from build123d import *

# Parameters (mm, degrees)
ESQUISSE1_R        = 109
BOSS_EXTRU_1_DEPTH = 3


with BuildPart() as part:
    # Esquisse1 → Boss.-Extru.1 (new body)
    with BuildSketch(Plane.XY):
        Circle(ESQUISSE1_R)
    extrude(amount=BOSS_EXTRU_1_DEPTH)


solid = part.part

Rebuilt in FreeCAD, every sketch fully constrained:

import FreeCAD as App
import Part
import Sketcher

V = App.Vector
Q = App.Units.Quantity

doc = App.newDocument("Part")
body = doc.addObject("PartDesign::Body", "Body")

sketch1 = body.newObject("Sketcher::SketchObject", "Sketch")
sketch1.AttachmentSupport = (doc.getObject("XY_Plane"), [""])
sketch1.MapMode = "FlatFace"
sketch1.addGeometry(Part.Circle(V(0, 0, 0), V(0, 0, 1), 109), False)
sketch1.addConstraint([
    Sketcher.Constraint("Coincident", 0, 3, -1, 1),
    Sketcher.Constraint("Diameter", 0, Q("218 mm")),
])
pad1 = body.newObject("PartDesign::Pad", "Pad")
pad1.Profile = sketch1
pad1.Length = 3

doc.recompute()
